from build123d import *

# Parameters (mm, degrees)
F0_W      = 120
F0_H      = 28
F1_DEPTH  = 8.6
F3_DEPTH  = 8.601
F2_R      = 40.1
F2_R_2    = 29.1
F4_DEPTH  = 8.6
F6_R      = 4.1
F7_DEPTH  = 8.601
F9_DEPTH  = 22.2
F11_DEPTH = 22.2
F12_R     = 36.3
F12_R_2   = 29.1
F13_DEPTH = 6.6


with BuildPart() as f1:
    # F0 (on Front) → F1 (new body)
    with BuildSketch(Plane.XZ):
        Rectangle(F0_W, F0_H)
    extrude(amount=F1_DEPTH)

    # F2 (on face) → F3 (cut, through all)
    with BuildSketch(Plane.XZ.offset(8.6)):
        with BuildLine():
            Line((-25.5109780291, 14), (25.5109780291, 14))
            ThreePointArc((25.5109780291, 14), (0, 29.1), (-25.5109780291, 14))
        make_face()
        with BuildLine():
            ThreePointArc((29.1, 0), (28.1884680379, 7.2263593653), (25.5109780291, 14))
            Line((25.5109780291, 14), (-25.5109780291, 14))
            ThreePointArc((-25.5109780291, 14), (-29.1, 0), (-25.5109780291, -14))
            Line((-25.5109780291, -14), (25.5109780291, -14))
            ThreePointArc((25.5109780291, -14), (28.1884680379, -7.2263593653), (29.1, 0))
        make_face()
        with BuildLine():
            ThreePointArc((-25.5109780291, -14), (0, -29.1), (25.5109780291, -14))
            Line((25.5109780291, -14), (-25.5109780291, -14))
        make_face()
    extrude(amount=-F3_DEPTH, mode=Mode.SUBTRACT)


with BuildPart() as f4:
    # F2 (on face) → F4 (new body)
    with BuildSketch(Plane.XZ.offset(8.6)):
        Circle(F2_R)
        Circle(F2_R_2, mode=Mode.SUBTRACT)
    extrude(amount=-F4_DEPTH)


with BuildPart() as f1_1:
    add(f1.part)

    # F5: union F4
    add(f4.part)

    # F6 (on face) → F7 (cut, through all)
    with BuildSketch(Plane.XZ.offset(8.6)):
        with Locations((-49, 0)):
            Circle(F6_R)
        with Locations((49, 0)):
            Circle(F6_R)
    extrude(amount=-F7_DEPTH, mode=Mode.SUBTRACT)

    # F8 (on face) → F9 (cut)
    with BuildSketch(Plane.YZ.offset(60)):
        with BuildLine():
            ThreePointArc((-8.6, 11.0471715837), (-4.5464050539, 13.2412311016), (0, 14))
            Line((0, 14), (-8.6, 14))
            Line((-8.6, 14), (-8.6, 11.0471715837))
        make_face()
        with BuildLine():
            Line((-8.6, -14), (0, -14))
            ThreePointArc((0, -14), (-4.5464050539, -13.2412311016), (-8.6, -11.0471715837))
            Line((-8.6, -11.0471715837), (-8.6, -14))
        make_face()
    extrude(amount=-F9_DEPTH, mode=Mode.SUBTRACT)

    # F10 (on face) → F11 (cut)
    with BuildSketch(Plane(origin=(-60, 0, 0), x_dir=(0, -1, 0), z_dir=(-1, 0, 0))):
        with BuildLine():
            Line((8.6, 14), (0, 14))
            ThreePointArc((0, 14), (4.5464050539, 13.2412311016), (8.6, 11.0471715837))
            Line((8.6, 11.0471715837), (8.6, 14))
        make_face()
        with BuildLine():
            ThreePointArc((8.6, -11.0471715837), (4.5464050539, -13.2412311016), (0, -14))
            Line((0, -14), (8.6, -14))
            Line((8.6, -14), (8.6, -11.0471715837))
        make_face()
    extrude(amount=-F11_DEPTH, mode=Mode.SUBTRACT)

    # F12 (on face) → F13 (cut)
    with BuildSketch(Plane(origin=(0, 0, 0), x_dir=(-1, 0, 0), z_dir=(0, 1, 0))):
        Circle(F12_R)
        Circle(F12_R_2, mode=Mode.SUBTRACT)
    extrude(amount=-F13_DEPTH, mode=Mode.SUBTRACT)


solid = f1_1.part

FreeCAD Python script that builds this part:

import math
import FreeCAD as App
import Part
import Sketcher
from FreeCAD import Vector
Q = App.Units.Quantity

doc = App.newDocument("Part")
body = doc.addObject("PartDesign::Body", "Body")
body.AllowCompound = True

# Sketch on XZ plane
sketch1 = body.newObject("Sketcher::SketchObject", "Sketch")
sketch1.AttachmentSupport = (doc.getObject("XZ_Plane"), [""])
sketch1.MapMode = "FlatFace"
sketch1.addGeometry([
    Part.LineSegment(Vector(-60, 14, 0), Vector(-60, -14, 0)),
    Part.LineSegment(Vector(-60, -14, 0), Vector(60, -14, 0)),
    Part.LineSegment(Vector(60, -14, 0), Vector(60, 14, 0)),
    Part.LineSegment(Vector(60, 14, 0), Vector(-60, 14, 0)),
], False)
sketch1.addConstraint([
    Sketcher.Constraint("Coincident", 0, 2, 1, 1),
    Sketcher.Constraint("Coincident", 1, 2, 2, 1),
    Sketcher.Constraint("Coincident", 2, 2, 3, 1),
    Sketcher.Constraint("Coincident", 3, 2, 0, 1),
    Sketcher.Constraint("Vertical", 0),
    Sketcher.Constraint("Horizontal", 1),
    Sketcher.Constraint("Vertical", 2),
    Sketcher.Constraint("Horizontal", 3),
    Sketcher.Constraint("Symmetric", 0, 2, 2, 2, -1, 1),
    Sketcher.Constraint("DistanceX", 1, 1, 1, 2, Q("120 mm")),
    Sketcher.Constraint("DistanceY", 0, 2, 0, 1, Q("28 mm")),
])
pad1 = body.newObject("PartDesign::Pad", "Pad")
pad1.Profile = sketch1
pad1.Length = 8.6

# Sketch on XZ plane
sketch2 = body.newObject("Sketcher::SketchObject", "Sketch001")
sketch2.AttachmentSupport = (doc.getObject("XZ_Plane"), [""])
sketch2.MapMode = "FlatFace"
sketch2.AttachmentOffset = App.Placement(Vector(0, 0, 8.6), App.Rotation())
sketch2.addGeometry([
    Part.ArcOfCircle(Part.Circle(Vector(0, 0, 0), Vector(0, 0, 1), 29), math.radians(29), math.radians(151)),  # 0
    Part.ArcOfCircle(Part.Circle(Vector(0, 0, 0), Vector(0, 0, 1), 29), math.radians(151), math.radians(209)),  # 1
    Part.ArcOfCircle(Part.Circle(Vector(0, 0, 0), Vector(0, 0, 1), 29), math.radians(-151), math.radians(-29)),  # 2
    Part.ArcOfCircle(Part.Circle(Vector(0, 0, 0), Vector(0, 0, 1), 29), math.radians(-29), math.radians(0)),  # 3
    Part.ArcOfCircle(Part.Circle(Vector(0, 0, 0), Vector(0, 0, 1), 29), math.radians(0), math.radians(29)),  # 4
], False)
sketch2.addConstraint([
    Sketcher.Constraint("Tangent", 0, 2, 1, 1),
    Sketcher.Constraint("Tangent", 1, 2, 2, 1),
    Sketcher.Constraint("Tangent", 2, 2, 3, 1),
    Sketcher.Constraint("Tangent", 3, 2, 4, 1),
    Sketcher.Constraint("Tangent", 4, 2, 0, 1),
    Sketcher.Constraint("Coincident", 0, 3, -1, 1),
    Sketcher.Constraint("Coincident", 2, 3, -1, 1),
    Sketcher.Constraint("PointOnObject", 3, 2, -1),
    Sketcher.Constraint("Horizontal", 1, 2, 2, 2),
    Sketcher.Constraint("Horizontal", 0, 2, 4, 2),
    Sketcher.Constraint("Vertical", 0, 2, 1, 2),
    Sketcher.Constraint("Radius", 0, Q("29.1 mm")),
    Sketcher.Constraint("DistanceY", -1, 1, 0, 2, Q("14 mm")),
])
pocket1 = body.newObject("PartDesign::Pocket", "Pocket")
pocket1.Profile = sketch2
pocket1.Type = "ThroughAll"
body2 = doc.addObject("PartDesign::Body", "Body001")

# Sketch on XZ plane
sketch3 = body2.newObject("Sketcher::SketchObject", "Sketch002")
sketch3.AttachmentSupport = (doc.getObject("XZ_Plane001"), [""])
sketch3.MapMode = "FlatFace"
sketch3.AttachmentOffset = App.Placement(Vector(0, 0, 8.6), App.Rotation())
sketch3.addGeometry([
    Part.Circle(Vector(0, 0, 0), Vector(0, 0, 1), 40),
    Part.Circle(Vector(0, 0, 0), Vector(0, 0, 1), 29),
], False)
sketch3.addConstraint([
    Sketcher.Constraint("Coincident", 0, 3, -1, 1),
    Sketcher.Constraint("Coincident", 1, 3, -1, 1),
    Sketcher.Constraint("Diameter", 0, Q("80.2 mm")),
    Sketcher.Constraint("Diameter", 1, Q("58.2 mm")),
])
pad2 = body2.newObject("PartDesign::Pad", "Pad001")
pad2.Profile = sketch3
pad2.Length = 8.6
pad2.Reversed = True
doc.recompute()

boolean = body.newObject("PartDesign::Boolean", "Boolean")
boolean.Type = "Fuse"
boolean.addObjects([body2])

# Sketch on XZ plane
sketch4 = body.newObject("Sketcher::SketchObject", "Sketch003")
sketch4.AttachmentSupport = (doc.getObject("XZ_Plane"), [""])
sketch4.MapMode = "FlatFace"
sketch4.AttachmentOffset = App.Placement(Vector(0, 0, 8.6), App.Rotation())
sketch4.addGeometry([
    Part.Circle(Vector(-49, 0, 0), Vector(0, 0, 1), 4.1),
    Part.Circle(Vector(49, 0, 0), Vector(0, 0, 1), 4.1),
], False)
sketch4.addConstraint([
    Sketcher.Constraint("Equal", 0, 1),
    Sketcher.Constraint("Symmetric", 0, 3, 1, 3, -1, 1),
    Sketcher.Constraint("PointOnObject", 0, 3, -1),
    Sketcher.Constraint("Diameter", 0, Q("8.2 mm")),
    Sketcher.Constraint("DistanceX", 0, 3, -1, 1, Q("49 mm")),
])
pocket2 = body.newObject("PartDesign::Pocket", "Pocket001")
pocket2.Profile = sketch4
pocket2.Type = "ThroughAll"

# Sketch on YZ plane
sketch5 = body.newObject("Sketcher::SketchObject", "Sketch004")
sketch5.AttachmentSupport = (doc.getObject("YZ_Plane"), [""])
sketch5.MapMode = "FlatFace"
sketch5.AttachmentOffset = App.Placement(Vector(0, 0, 60), App.Rotation())
sketch5.addGeometry([
    Part.ArcOfCircle(Part.Circle(Vector(0, 0, 0), Vector(0, 0, 1), 14), math.radians(90), math.radians(128)),  # 0
    Part.LineSegment(Vector(0, 14, 0), Vector(-8.6, 14, 0)),  # 1
    Part.LineSegment(Vector(-8.6, 14, 0), Vector(-8.6, 11, 0)),  # 2
    Part.LineSegment(Vector(-8.6, -14, 0), Vector(0, -14, 0)),  # 3
    Part.ArcOfCircle(Part.Circle(Vector(0, 0, 0), Vector(0, 0, 1), 14), math.radians(-128), math.radians(-90)),  # 4
    Part.LineSegment(Vector(-8.6, -11, 0), Vector(-8.6, -14, 0)),  # 5
], False)
sketch5.addConstraint([
    Sketcher.Constraint("Tangent", 0, 1, 1, 1),
    Sketcher.Constraint("Coincident", 1, 2, 2, 1),
    Sketcher.Constraint("Coincident", 2, 2, 0, 2),
    Sketcher.Constraint("Tangent", 3, 2, 4, 2),
    Sketcher.Constraint("Coincident", 4, 1, 5, 1),
    Sketcher.Constraint("Coincident", 5, 2, 3, 1),
    Sketcher.Constraint("Horizontal", 1),
    Sketcher.Constraint("Vertical", 2),
    Sketcher.Constraint("Horizontal", 3),
    Sketcher.Constraint("Vertical", 5),
    Sketcher.Constraint("Coincident", 0, 3, -1, 1),
    Sketcher.Constraint("Coincident", 4, 3, -1, 1),
    Sketcher.Constraint("Equal", 0, 4),
    Sketcher.Constraint("Vertical", 2, 2, 4, 1),
    Sketcher.Constraint("Radius", 0, Q("14 mm")),
    Sketcher.Constraint("DistanceX", 1, 2, 1, 1, Q("8.6 mm")),
])
pocket3 = body.newObject("PartDesign::Pocket", "Pocket002")
pocket3.Profile = sketch5
pocket3.Length = 22.2

# Sketch on YZ plane
sketch6 = body.newObject("Sketcher::SketchObject", "Sketch005")
sketch6.AttachmentSupport = (doc.getObject("YZ_Plane"), [""])
sketch6.MapMode = "FlatFace"
sketch6.AttachmentOffset = App.Placement(Vector(0, 0, -60), App.Rotation())
sketch6.addGeometry([
    Part.LineSegment(Vector(-8.6, 14, 0), Vector(0, 14, 0)),  # 0
    Part.ArcOfCircle(Part.Circle(Vector(0, 0, 0), Vector(0, 0, 1), 14), math.radians(90), math.radians(128)),  # 1
    Part.LineSegment(Vector(-8.6, 11, 0), Vector(-8.6, 14, 0)),  # 2
    Part.ArcOfCircle(Part.Circle(Vector(0, 0, 0), Vector(0, 0, 1), 14), math.radians(-128), math.radians(-90)),  # 3
    Part.LineSegment(Vector(0, -14, 0), Vector(-8.6, -14, 0)),  # 4
    Part.LineSegment(Vector(-8.6, -14, 0), Vector(-8.6, -11, 0)),  # 5
], False)
sketch6.addConstraint([
    Sketcher.Constraint("Tangent", 0, 2, 1, 1),
    Sketcher.Constraint("Coincident", 1, 2, 2, 1),
    Sketcher.Constraint("Coincident", 2, 2, 0, 1),
    Sketcher.Constraint("Tangent", 3, 2, 4, 1),
    Sketcher.Constraint("Coincident", 4, 2, 5, 1),
    Sketcher.Constraint("Coincident", 5, 2, 3, 1),
    Sketcher.Constraint("Horizontal", 0),
    Sketcher.Constraint("Vertical", 2),
    Sketcher.Constraint("Horizontal", 4),
    Sketcher.Constraint("Vertical", 5),
    Sketcher.Constraint("Coincident", 1, 3, -1, 1),
    Sketcher.Constraint("Coincident", 3, 3, -1, 1),
    Sketcher.Constraint("Equal", 1, 3),
    Sketcher.Constraint("Vertical", 2, 2, 4, 2),
    Sketcher.Constraint("Radius", 1, Q("14 mm")),
    Sketcher.Constraint("DistanceX", 0, 1, 0, 2, Q("8.6 mm")),
])
pocket4 = body.newObject("PartDesign::Pocket", "Pocket003")
pocket4.Profile = sketch6
pocket4.Length = 22.2
pocket4.Reversed = True

# Sketch on XZ plane
sketch7 = body.newObject("Sketcher::SketchObject", "Sketch006")
sketch7.AttachmentSupport = (doc.getObject("XZ_Plane"), [""])
sketch7.MapMode = "FlatFace"
sketch7.addGeometry([
    Part.Circle(Vector(0, 0, 0), Vector(0, 0, 1), 36),
    Part.Circle(Vector(0, 0, 0), Vector(0, 0, 1), 29),
], False)
sketch7.addConstraint([
    Sketcher.Constraint("Coincident", 0, 3, -1, 1),
    Sketcher.Constraint("Coincident", 1, 3, -1, 1),
    Sketcher.Constraint("Diameter", 0, Q("72.6 mm")),
    Sketcher.Constraint("Diameter", 1, Q("58.2 mm")),
])
pocket5 = body.newObject("PartDesign::Pocket", "Pocket004")
pocket5.Profile = sketch7
pocket5.Length = 6.6
pocket5.Reversed = True

doc.recompute()
